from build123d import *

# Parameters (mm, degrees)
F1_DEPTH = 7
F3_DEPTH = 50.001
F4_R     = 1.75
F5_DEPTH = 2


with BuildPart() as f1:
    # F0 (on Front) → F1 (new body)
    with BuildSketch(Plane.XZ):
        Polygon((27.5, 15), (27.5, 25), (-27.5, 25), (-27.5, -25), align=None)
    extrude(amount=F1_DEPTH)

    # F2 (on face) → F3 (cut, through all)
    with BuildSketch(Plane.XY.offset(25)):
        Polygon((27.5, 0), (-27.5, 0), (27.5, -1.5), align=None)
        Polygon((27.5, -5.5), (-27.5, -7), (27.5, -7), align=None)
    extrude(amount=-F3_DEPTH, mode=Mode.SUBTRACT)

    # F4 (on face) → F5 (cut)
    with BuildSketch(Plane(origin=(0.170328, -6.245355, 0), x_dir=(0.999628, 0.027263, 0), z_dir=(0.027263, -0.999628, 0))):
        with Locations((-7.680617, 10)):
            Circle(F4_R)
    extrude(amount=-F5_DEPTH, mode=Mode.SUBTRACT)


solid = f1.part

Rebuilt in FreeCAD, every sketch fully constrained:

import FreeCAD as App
import Part
import Sketcher
from FreeCAD import Vector
Q = App.Units.Quantity

doc = App.newDocument("Part")
body = doc.addObject("PartDesign::Body", "Body")

sketch1 = body.newObject("Sketcher::SketchObject", "Sketch")
sketch1.AttachmentSupport = (doc.getObject("XZ_Plane"), [""])
sketch1.MapMode = "FlatFace"
sketch1.addGeometry([
    Part.LineSegment(Vector(27.5, 15, 0), Vector(27.5, 25, 0)),
    Part.LineSegment(Vector(27.5, 25, 0), Vector(-27.5, 25, 0)),
    Part.LineSegment(Vector(-27.5, 25, 0), Vector(-27.5, -25, 0)),
    Part.LineSegment(Vector(-27.5, -25, 0), Vector(27.5, 15, 0)),
], False)
sketch1.addConstraint([
    Sketcher.Constraint("Coincident", 0, 2, 1, 1),
    Sketcher.Constraint("Coincident", 1, 2, 2, 1),
    Sketcher.Constraint("Coincident", 2, 2, 3, 1),
    Sketcher.Constraint("Coincident", 3, 2, 0, 1),
    Sketcher.Constraint("Vertical", 0),
    Sketcher.Constraint("Horizontal", 1),
    Sketcher.Constraint("Vertical", 2),
    Sketcher.Constraint("Symmetric", 0, 2, 2, 2, -1, 1),
    Sketcher.Constraint("DistanceX", 1, 2, 1, 1, Q("55 mm")),
    Sketcher.Constraint("DistanceY", 0, 1, 0, 2, Q("10 mm")),
    Sketcher.Constraint("DistanceY", 2, 2, 2, 1, Q("50 mm")),
])
pad1 = body.newObject("PartDesign::Pad", "Pad")
pad1.Profile = sketch1
pad1.Length = 7

sketch2 = body.newObject("Sketcher::SketchObject", "Sketch001")
sketch2.AttachmentSupport = (doc.getObject("XY_Plane"), [""])
sketch2.MapMode = "FlatFace"
sketch2.AttachmentOffset = App.Placement(Vector(0, 0, 25), App.Rotation())
sketch2.addGeometry([
    Part.LineSegment(Vector(27.5, 0, 0), Vector(-27.5, 0, 0)),
    Part.LineSegment(Vector(-27.5, 0, 0), Vector(27.5, -1.5, 0)),
    Part.LineSegment(Vector(27.5, -1.5, 0), Vector(27.5, 0, 0)),
    Part.LineSegment(Vector(27.5, -5.5, 0), Vector(-27.5, -7, 0)),
    Part.LineSegment(Vector(-27.5, -7, 0), Vector(27.5, -7, 0)),
    Part.LineSegment(Vector(27.5, -7, 0), Vector(27.5, -5.5, 0)),
], False)
sketch2.addConstraint([
    Sketcher.Constraint("Coincident", 0, 2, 1, 1),
    Sketcher.Constraint("Coincident", 1, 2, 2, 1),
    Sketcher.Constraint("Coincident", 2, 2, 0, 1),
    Sketcher.Constraint("Coincident", 3, 2, 4, 1),
    Sketcher.Constraint("Coincident", 4, 2, 5, 1),
    Sketcher.Constraint("Coincident", 5, 2, 3, 1),
    Sketcher.Constraint("Horizontal", 0),
    Sketcher.Constraint("Vertical", 2),
    Sketcher.Constraint("Horizontal", 4),
    Sketcher.Constraint("Vertical", 5),
    Sketcher.Constraint("Symmetric", 0, 2, 2, 2, -1, 1),
    Sketcher.Constraint("Vertical", 0, 2, 3, 2),
    Sketcher.Constraint("Vertical", 2, 2, 4, 2),
    Sketcher.Constraint("Equal", 2, 5),
    Sketcher.Constraint("DistanceX", 0, 2, 0, 1, Q("55 mm")),
    Sketcher.Constraint("DistanceY", 2, 1, 2, 2, Q("1.5 mm")),
    Sketcher.Constraint("DistanceY", 3, 2, -1, 1, Q("7 mm")),
])
pocket1 = body.newObject("PartDesign::Pocket", "Pocket")
pocket1.Profile = sketch2
pocket1.Type = "ThroughAll"

sketch3 = body.newObject("Sketcher::SketchObject", "Sketch002")
sketch3.Placement = App.Placement(Vector(0.170328, -6.245355, 0), App.Rotation(Vector(0.999628295, 0.027263008, 0), Vector(0, 0, 1), Vector(0.027263008, -0.999628295, 0), "ZXY"))
sketch3.addGeometry(Part.Circle(Vector(-7.680617, 10, 0), Vector(0, 0, 1), 1.75), False)
sketch3.addConstraint([
    Sketcher.Constraint("Diameter", 0, Q("3.5 mm")),
    Sketcher.Constraint("DistanceY", -1, 1, 0, 3, Q("10 mm")),
    Sketcher.Constraint("DistanceX", 0, 3, -1, 1, Q("7.680617 mm")),
])
pocket2 = body.newObject("PartDesign::Pocket", "Pocket001")
pocket2.Profile = sketch3
pocket2.Length = 2

doc.recompute()
